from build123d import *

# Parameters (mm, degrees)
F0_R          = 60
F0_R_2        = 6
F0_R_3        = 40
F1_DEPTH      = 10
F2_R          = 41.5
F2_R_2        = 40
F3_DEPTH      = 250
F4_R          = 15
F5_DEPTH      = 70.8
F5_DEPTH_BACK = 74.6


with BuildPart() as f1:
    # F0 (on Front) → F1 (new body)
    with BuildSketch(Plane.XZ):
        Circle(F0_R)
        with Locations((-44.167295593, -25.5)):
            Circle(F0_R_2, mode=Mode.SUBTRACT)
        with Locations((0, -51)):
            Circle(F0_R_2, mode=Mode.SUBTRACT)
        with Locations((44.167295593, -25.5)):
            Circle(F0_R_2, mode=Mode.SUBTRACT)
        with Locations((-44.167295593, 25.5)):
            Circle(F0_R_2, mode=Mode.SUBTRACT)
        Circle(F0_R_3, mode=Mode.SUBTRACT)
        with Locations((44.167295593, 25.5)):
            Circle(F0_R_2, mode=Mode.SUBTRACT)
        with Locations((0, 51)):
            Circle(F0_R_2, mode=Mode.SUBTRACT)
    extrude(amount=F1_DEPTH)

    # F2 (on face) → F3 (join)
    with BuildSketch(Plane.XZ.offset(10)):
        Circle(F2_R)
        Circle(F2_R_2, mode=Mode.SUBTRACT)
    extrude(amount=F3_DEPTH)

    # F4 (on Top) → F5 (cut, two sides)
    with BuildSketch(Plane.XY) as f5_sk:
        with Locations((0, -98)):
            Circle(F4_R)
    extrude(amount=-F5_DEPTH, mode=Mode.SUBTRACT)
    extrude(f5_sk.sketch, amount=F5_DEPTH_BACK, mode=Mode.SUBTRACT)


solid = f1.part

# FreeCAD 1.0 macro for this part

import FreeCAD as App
import Part
import Sketcher
from FreeCAD import Vector

doc = App.newDocument("Part")
body = doc.addObject("PartDesign::Body", "Body")

# Sketch on XZ plane
sketch1 = body.newObject("Sketcher::SketchObject", "Sketch")
sketch1.AttachmentSupport = (doc.getObject("XZ_Plane"), [""])
sketch1.MapMode = "FlatFace"
sketch1.addGeometry(Part.Circle(Vector(0, 0, 0), Vector(0, 0, 1), 60), False)
sketch1.addGeometry(Part.Circle(Vector(-44, -26, 0), Vector(0, 0, 1), 6), False)
sketch1.addGeometry(Part.Circle(Vector(0, -51, 0), Vector(0, 0, 1), 6), False)
sketch1.addGeometry(Part.Circle(Vector(44, -26, 0), Vector(0, 0, 1), 6), False)
sketch1.addGeometry(Part.Circle(Vector(-44, 26, 0), Vector(0, 0, 1), 6), False)
sketch1.addGeometry(Part.Circle(Vector(0, 0, 0), Vector(0, 0, 1), 40), False)
sketch1.addGeometry(Part.Circle(Vector(44, 26, 0), Vector(0, 0, 1), 6), False)
sketch1.addGeometry(Part.Circle(Vector(0, 51, 0), Vector(0, 0, 1), 6), False)
sketch1.addConstraint(Sketcher.Constraint("Coincident", 0, 3, -1, 1))
sketch1.addConstraint(Sketcher.Constraint("Coincident", 5, 3, -1, 1))
sketch1.addConstraint(Sketcher.Constraint("Equal", 1, 2))
sketch1.addConstraint(Sketcher.Constraint("Equal", 2, 3))
sketch1.addConstraint(Sketcher.Constraint("Equal", 3, 4))
sketch1.addConstraint(Sketcher.Constraint("Equal", 4, 6))
sketch1.addConstraint(Sketcher.Constraint("Equal", 6, 7))
sketch1.addConstraint(Sketcher.Constraint("Symmetric", 3, 3, 4, 3, -1, 1))
sketch1.addConstraint(Sketcher.Constraint("Symmetric", 1, 3, 6, 3, -1, 1))
sketch1.addConstraint(Sketcher.Constraint("Symmetric", 2, 3, 7, 3, -1, 1))
sketch1.addConstraint(Sketcher.Constraint("Symmetric", 1, 3, 3, 3, -2))
sketch1.addConstraint(Sketcher.Constraint("PointOnObject", 2, 3, -2))
sketch1.addConstraint(Sketcher.Constraint("Diameter", 0, 120.0))
sketch1.addConstraint(Sketcher.Constraint("Diameter", 1, 12.0))
sketch1.addConstraint(Sketcher.Constraint("Diameter", 5, 80.0))
sketch1.addConstraint(Sketcher.Constraint("DistanceY", 2, 3, -1, 1, 51.0))
sketch1.addConstraint(Sketcher.Constraint("DistanceY", 1, 3, 4, 3, 51.0))
sketch1.addConstraint(Sketcher.Constraint("DistanceX", 1, 3, 3, 3, 88.334591))
pad1 = body.newObject("PartDesign::Pad", "Pad")
pad1.Profile = sketch1
pad1.Length = 10

# Sketch on XZ plane
sketch2 = body.newObject("Sketcher::SketchObject", "Sketch001")
sketch2.AttachmentSupport = (doc.getObject("XZ_Plane"), [""])
sketch2.MapMode = "FlatFace"
sketch2.AttachmentOffset = App.Placement(Vector(0, 0, 10), App.Rotation())
sketch2.addGeometry(Part.Circle(Vector(0, 0, 0), Vector(0, 0, 1), 42), False)
sketch2.addGeometry(Part.Circle(Vector(0, 0, 0), Vector(0, 0, 1), 40), False)
sketch2.addConstraint(Sketcher.Constraint("Coincident", 0, 3, -1, 1))
sketch2.addConstraint(Sketcher.Constraint("Coincident", 1, 3, -1, 1))
sketch2.addConstraint(Sketcher.Constraint("Diameter", 0, 83.0))
sketch2.addConstraint(Sketcher.Constraint("Diameter", 1, 80.0))
pad2 = body.newObject("PartDesign::Pad", "Pad001")
pad2.Profile = sketch2
pad2.Length = 250

# Sketch on XY plane
sketch3 = body.newObject("Sketcher::SketchObject", "Sketch002")
sketch3.AttachmentSupport = (doc.getObject("XY_Plane"), [""])
sketch3.MapMode = "FlatFace"
sketch3.addGeometry(Part.Circle(Vector(0, -98, 0), Vector(0, 0, 1), 15), False)
sketch3.addConstraint(Sketcher.Constraint("PointOnObject", 0, 3, -2))
sketch3.addConstraint(Sketcher.Constraint("Diameter", 0, 30.0))
sketch3.addConstraint(Sketcher.Constraint("DistanceY", 0, 3, -1, 1, 98.0))
pocket1 = body.newObject("PartDesign::Pocket", "Pocket")
pocket1.Profile = sketch3
pocket1.Type = "ThroughAll"
pocket1.Midplane = True

doc.recompute()
